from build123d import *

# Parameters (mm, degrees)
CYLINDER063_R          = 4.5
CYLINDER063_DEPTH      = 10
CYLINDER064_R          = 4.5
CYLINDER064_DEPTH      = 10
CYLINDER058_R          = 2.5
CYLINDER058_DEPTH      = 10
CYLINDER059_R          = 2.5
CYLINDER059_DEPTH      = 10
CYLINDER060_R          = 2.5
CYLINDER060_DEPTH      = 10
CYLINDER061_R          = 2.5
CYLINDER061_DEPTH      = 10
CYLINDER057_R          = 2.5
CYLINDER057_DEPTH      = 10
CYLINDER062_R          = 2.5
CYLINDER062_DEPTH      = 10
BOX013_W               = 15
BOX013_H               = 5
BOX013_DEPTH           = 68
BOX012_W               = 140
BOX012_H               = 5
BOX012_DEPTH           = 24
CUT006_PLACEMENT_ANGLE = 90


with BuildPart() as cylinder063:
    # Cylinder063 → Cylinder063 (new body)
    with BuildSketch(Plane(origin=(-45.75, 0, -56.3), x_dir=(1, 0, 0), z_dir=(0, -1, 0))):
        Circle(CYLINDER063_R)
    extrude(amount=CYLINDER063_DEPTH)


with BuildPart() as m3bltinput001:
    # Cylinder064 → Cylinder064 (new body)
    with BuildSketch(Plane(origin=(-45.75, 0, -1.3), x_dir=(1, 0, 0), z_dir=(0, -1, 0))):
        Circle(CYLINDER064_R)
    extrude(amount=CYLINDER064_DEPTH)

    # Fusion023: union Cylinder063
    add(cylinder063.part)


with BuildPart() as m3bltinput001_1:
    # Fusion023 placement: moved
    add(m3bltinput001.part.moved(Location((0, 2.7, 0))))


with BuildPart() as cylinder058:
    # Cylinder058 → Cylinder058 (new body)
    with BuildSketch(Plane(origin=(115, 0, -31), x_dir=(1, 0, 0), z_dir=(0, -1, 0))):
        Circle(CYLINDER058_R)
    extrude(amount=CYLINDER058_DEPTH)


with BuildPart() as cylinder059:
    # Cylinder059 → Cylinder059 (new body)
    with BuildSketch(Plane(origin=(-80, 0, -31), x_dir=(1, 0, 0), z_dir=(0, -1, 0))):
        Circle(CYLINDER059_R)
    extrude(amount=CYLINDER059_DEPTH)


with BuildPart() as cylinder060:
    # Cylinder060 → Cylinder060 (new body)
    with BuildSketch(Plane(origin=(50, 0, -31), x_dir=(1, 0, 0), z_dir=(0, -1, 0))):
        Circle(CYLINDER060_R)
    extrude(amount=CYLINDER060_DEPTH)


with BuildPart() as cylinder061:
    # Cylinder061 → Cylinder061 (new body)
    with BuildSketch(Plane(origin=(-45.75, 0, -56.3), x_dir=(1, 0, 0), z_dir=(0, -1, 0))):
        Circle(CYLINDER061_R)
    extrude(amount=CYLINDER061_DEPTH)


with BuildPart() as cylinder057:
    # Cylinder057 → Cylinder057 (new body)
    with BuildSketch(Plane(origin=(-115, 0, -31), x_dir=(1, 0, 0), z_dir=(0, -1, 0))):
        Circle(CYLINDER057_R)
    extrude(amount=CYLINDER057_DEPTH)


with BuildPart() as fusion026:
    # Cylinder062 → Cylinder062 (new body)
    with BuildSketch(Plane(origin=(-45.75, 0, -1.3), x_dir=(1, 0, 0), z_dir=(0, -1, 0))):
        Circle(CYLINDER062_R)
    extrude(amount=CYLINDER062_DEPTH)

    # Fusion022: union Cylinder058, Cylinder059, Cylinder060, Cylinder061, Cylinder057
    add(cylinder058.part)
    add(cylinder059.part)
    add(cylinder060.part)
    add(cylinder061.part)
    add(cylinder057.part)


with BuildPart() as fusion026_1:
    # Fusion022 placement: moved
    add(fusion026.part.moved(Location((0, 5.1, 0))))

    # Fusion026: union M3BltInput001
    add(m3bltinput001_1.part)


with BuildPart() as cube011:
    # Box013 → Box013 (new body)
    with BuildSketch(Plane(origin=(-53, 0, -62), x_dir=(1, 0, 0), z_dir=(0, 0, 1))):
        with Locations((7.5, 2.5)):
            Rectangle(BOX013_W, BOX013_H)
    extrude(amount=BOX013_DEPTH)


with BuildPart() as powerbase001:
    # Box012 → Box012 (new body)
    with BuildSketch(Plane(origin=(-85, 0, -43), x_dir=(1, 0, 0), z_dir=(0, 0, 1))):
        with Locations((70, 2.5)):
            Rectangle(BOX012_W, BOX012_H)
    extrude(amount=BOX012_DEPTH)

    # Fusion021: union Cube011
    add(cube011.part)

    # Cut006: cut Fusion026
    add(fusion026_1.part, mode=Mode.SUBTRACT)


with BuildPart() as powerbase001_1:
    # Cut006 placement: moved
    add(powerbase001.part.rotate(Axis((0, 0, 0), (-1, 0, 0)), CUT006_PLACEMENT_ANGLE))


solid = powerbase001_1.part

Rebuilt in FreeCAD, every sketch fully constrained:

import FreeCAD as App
import Part
import Sketcher
from FreeCAD import Vector


def add_polygon(sketch, points):
    """Adds a closed chain of lines whose ends are joined by coincident constraints."""
    first, n = sketch.GeometryCount, len(points)
    for a, b in zip(points, points[1:] + points[:1]):
        sketch.addGeometry(Part.LineSegment(App.Vector(*a, 0), App.Vector(*b, 0)), False)
    for i in range(n):
        sketch.addConstraint(Sketcher.Constraint("Coincident", first + i, 2, first + (i + 1) % n, 1))

doc = App.newDocument("Part")
body = doc.addObject("PartDesign::Body", "Body")

# Sketch on XZ plane
sketch1 = body.newObject("Sketcher::SketchObject", "Sketch")
sketch1.AttachmentSupport = (doc.getObject("XZ_Plane"), [""])
sketch1.MapMode = "FlatFace"
sketch1.addGeometry(Part.Circle(Vector(-45.8, -56.3, 0), Vector(0, 0, 1), 4.5), False)
sketch1.addConstraint([
    Sketcher.Constraint("Diameter", 0, 9.0),
    Sketcher.Constraint("DistanceY", 0, 3, -1, 1, 56.3),
    Sketcher.Constraint("DistanceX", 0, 3, -1, 1, 45.75),
])
pad1 = body.newObject("PartDesign::Pad", "Pad")
pad1.Profile = sketch1
pad1.Length = 10
body2 = doc.addObject("PartDesign::Body", "Body001")
body2.AllowCompound = True

# Sketch on XZ plane
sketch2 = body2.newObject("Sketcher::SketchObject", "Sketch001")
sketch2.AttachmentSupport = (doc.getObject("XZ_Plane001"), [""])
sketch2.MapMode = "FlatFace"
sketch2.addGeometry(Part.Circle(Vector(-45.8, -1.3, 0), Vector(0, 0, 1), 4.5), False)
sketch2.addConstraint([
    Sketcher.Constraint("Diameter", 0, 9.0),
    Sketcher.Constraint("DistanceY", 0, 3, -1, 1, 1.3),
    Sketcher.Constraint("DistanceX", 0, 3, -1, 1, 45.75),
])
pad2 = body2.newObject("PartDesign::Pad", "Pad001")
pad2.Profile = sketch2
pad2.Length = 10
doc.recompute()

boolean = body2.newObject("PartDesign::Boolean", "Boolean")
boolean.Type = "Fuse"
boolean.addObjects([body])
body3 = doc.addObject("PartDesign::Body", "Body002")
body3.AllowCompound = True
doc.recompute()

body2.Placement = App.Placement(Vector(0, 2.7, 0), App.Rotation(Vector(0, 0, 1), 0))
boolean2 = body3.newObject("PartDesign::Boolean", "Boolean001")
boolean2.Type = "Fuse"
boolean2.addObjects([body2])
body4 = doc.addObject("PartDesign::Body", "Body003")

# Sketch on XZ plane
sketch3 = body4.newObject("Sketcher::SketchObject", "Sketch002")
sketch3.AttachmentSupport = (doc.getObject("XZ_Plane003"), [""])
sketch3.MapMode = "FlatFace"
sketch3.addGeometry(Part.Circle(Vector(115, -31, 0), Vector(0, 0, 1), 2.5), False)
sketch3.addConstraint([
    Sketcher.Constraint("Diameter", 0, 5.0),
    Sketcher.Constraint("DistanceX", -1, 1, 0, 3, 115.0),
    Sketcher.Constraint("DistanceY", 0, 3, -1, 1, 31.0),
])
pad3 = body4.newObject("PartDesign::Pad", "Pad002")
pad3.Profile = sketch3
pad3.Length = 10
body5 = doc.addObject("PartDesign::Body", "Body004")

# Sketch on XZ plane
sketch4 = body5.newObject("Sketcher::SketchObject", "Sketch003")
sketch4.AttachmentSupport = (doc.getObject("XZ_Plane004"), [""])
sketch4.MapMode = "FlatFace"
sketch4.addGeometry(Part.Circle(Vector(-80, -31, 0), Vector(0, 0, 1), 2.5), False)
sketch4.addConstraint([
    Sketcher.Constraint("Diameter", 0, 5.0),
    Sketcher.Constraint("DistanceX", 0, 3, -1, 1, 80.0),
    Sketcher.Constraint("DistanceY", 0, 3, -1, 1, 31.0),
])
pad4 = body5.newObject("PartDesign::Pad", "Pad003")
pad4.Profile = sketch4
pad4.Length = 10
body6 = doc.addObject("PartDesign::Body", "Body005")

# Sketch on XZ plane
sketch5 = body6.newObject("Sketcher::SketchObject", "Sketch004")
sketch5.AttachmentSupport = (doc.getObject("XZ_Plane005"), [""])
sketch5.MapMode = "FlatFace"
sketch5.addGeometry(Part.Circle(Vector(50, -31, 0), Vector(0, 0, 1), 2.5), False)
sketch5.addConstraint([
    Sketcher.Constraint("Diameter", 0, 5.0),
    Sketcher.Constraint("DistanceX", -1, 1, 0, 3, 50.0),
    Sketcher.Constraint("DistanceY", 0, 3, -1, 1, 31.0),
])
pad5 = body6.newObject("PartDesign::Pad", "Pad004")
pad5.Profile = sketch5
pad5.Length = 10
body7 = doc.addObject("PartDesign::Body", "Body006")

# Sketch on XZ plane
sketch6 = body7.newObject("Sketcher::SketchObject", "Sketch005")
sketch6.AttachmentSupport = (doc.getObject("XZ_Plane006"), [""])
sketch6.MapMode = "FlatFace"
sketch6.addGeometry(Part.Circle(Vector(-45.8, -56.3, 0), Vector(0, 0, 1), 2.5), False)
sketch6.addConstraint([
    Sketcher.Constraint("Diameter", 0, 5.0),
    Sketcher.Constraint("DistanceY", 0, 3, -1, 1, 56.3),
    Sketcher.Constraint("DistanceX", 0, 3, -1, 1, 45.75),
])
pad6 = body7.newObject("PartDesign::Pad", "Pad005")
pad6.Profile = sketch6
pad6.Length = 10
body8 = doc.addObject("PartDesign::Body", "Body007")

# Sketch on XZ plane
sketch7 = body8.newObject("Sketcher::SketchObject", "Sketch006")
sketch7.AttachmentSupport = (doc.getObject("XZ_Plane007"), [""])
sketch7.MapMode = "FlatFace"
sketch7.addGeometry(Part.Circle(Vector(-115, -31, 0), Vector(0, 0, 1), 2.5), False)
sketch7.addConstraint([
    Sketcher.Constraint("Diameter", 0, 5.0),
    Sketcher.Constraint("DistanceX", 0, 3, -1, 1, 115.0),
    Sketcher.Constraint("DistanceY", 0, 3, -1, 1, 31.0),
])
pad7 = body8.newObject("PartDesign::Pad", "Pad006")
pad7.Profile = sketch7
pad7.Length = 10
body9 = doc.addObject("PartDesign::Body", "Body008")
body9.AllowCompound = True

# Sketch on XZ plane
sketch8 = body9.newObject("Sketcher::SketchObject", "Sketch007")
sketch8.AttachmentSupport = (doc.getObject("XZ_Plane008"), [""])
sketch8.MapMode = "FlatFace"
sketch8.addGeometry(Part.Circle(Vector(-45.8, -1.3, 0), Vector(0, 0, 1), 2.5), False)
sketch8.addConstraint([
    Sketcher.Constraint("Diameter", 0, 5.0),
    Sketcher.Constraint("DistanceY", 0, 3, -1, 1, 1.3),
    Sketcher.Constraint("DistanceX", 0, 3, -1, 1, 45.75),
])
pad8 = body9.newObject("PartDesign::Pad", "Pad007")
pad8.Profile = sketch8
pad8.Length = 10
doc.recompute()

boolean3 = body9.newObject("PartDesign::Boolean", "Boolean002")
boolean3.Type = "Fuse"
boolean3.addObjects([body4])
doc.recompute()

boolean4 = body9.newObject("PartDesign::Boolean", "Boolean003")
boolean4.Type = "Fuse"
boolean4.addObjects([body5])
doc.recompute()

boolean5 = body9.newObject("PartDesign::Boolean", "Boolean004")
boolean5.Type = "Fuse"
boolean5.addObjects([body6])
doc.recompute()

boolean6 = body9.newObject("PartDesign::Boolean", "Boolean005")
boolean6.Type = "Fuse"
boolean6.addObjects([body7])
doc.recompute()

boolean7 = body9.newObject("PartDesign::Boolean", "Boolean006")
boolean7.Type = "Fuse"
boolean7.addObjects([body8])
body10 = doc.addObject("PartDesign::Body", "Body009")
body10.AllowCompound = True
doc.recompute()

body9.Placement = App.Placement(Vector(0, 5.1, 0), App.Rotation(Vector(0, 0, 1), 0))
boolean8 = body10.newObject("PartDesign::Boolean", "Boolean007")
boolean8.Type = "Fuse"
boolean8.addObjects([body9])
doc.recompute()

boolean9 = body10.newObject("PartDesign::Boolean", "Boolean008")
boolean9.Type = "Fuse"
boolean9.addObjects([body3])
body11 = doc.addObject("PartDesign::Body", "Body010")

# Sketch on XY plane
sketch9 = body11.newObject("Sketcher::SketchObject", "Sketch008")
sketch9.AttachmentSupport = (doc.getObject("XY_Plane010"), [""])
sketch9.MapMode = "FlatFace"
sketch9.AttachmentOffset = App.Placement(Vector(0, 0, -62), App.Rotation())
add_polygon(sketch9, [(-53, 5), (-53, 0), (-38, 0), (-38, 5)])  # lines 0-3
sketch9.addConstraint([
    Sketcher.Constraint("Vertical", 0),
    Sketcher.Constraint("Horizontal", 1),
    Sketcher.Constraint("Vertical", 2),
    Sketcher.Constraint("Horizontal", 3),
    Sketcher.Constraint("PointOnObject", 0, 2, -1),
    Sketcher.Constraint("DistanceX", 1, 1, 1, 2, 15.0),
    Sketcher.Constraint("DistanceY", 0, 2, 0, 1, 5.0),
    Sketcher.Constraint("DistanceX", 0, 2, -1, 1, 53.0),
])
pad9 = body11.newObject("PartDesign::Pad", "Pad008")
pad9.Profile = sketch9
pad9.Length = 68
body12 = doc.addObject("PartDesign::Body", "Body011")

# Sketch on XY plane
sketch10 = body12.newObject("Sketcher::SketchObject", "Sketch009")
sketch10.AttachmentSupport = (doc.getObject("XY_Plane011"), [""])
sketch10.MapMode = "FlatFace"
sketch10.AttachmentOffset = App.Placement(Vector(0, 0, -43), App.Rotation())
add_polygon(sketch10, [(-85, 5), (-85, 0), (55, 0), (55, 5)])  # lines 0-3
sketch10.addConstraint([
    Sketcher.Constraint("Vertical", 0),
    Sketcher.Constraint("Horizontal", 1),
    Sketcher.Constraint("Vertical", 2),
    Sketcher.Constraint("Horizontal", 3),
    Sketcher.Constraint("PointOnObject", 0, 2, -1),
    Sketcher.Constraint("DistanceX", 1, 1, 1, 2, 140.0),
    Sketcher.Constraint("DistanceY", 0, 2, 0, 1, 5.0),
    Sketcher.Constraint("DistanceX", 0, 2, -1, 1, 85.0),
])
pad10 = body12.newObject("PartDesign::Pad", "Pad009")
pad10.Profile = sketch10
pad10.Length = 24
doc.recompute()

boolean10 = body12.newObject("PartDesign::Boolean", "Boolean009")
boolean10.Type = "Fuse"
boolean10.addObjects([body11])
doc.recompute()

boolean11 = body12.newObject("PartDesign::Boolean", "Boolean010")
boolean11.Type = "Cut"
boolean11.addObjects([body10])
body13 = doc.addObject("PartDesign::Body", "Body012")
doc.recompute()

body12.Placement = App.Placement(Vector(0, 0, 0), App.Rotation(Vector(-1, 0, 0), 90))
boolean12 = body13.newObject("PartDesign::Boolean", "Boolean011")
boolean12.Type = "Fuse"
boolean12.addObjects([body12])

doc.recompute()
